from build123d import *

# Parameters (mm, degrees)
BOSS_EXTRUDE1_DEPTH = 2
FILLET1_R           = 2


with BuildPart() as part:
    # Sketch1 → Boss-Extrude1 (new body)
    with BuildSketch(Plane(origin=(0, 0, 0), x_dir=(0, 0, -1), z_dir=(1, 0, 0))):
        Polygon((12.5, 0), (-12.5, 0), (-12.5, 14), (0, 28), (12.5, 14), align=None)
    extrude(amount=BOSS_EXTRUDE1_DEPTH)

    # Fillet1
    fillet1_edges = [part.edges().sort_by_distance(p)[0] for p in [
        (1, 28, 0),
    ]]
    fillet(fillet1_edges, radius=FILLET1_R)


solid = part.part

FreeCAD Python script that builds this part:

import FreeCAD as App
import Part
import Sketcher

V = App.Vector
Q = App.Units.Quantity


def edges_at(feature, points):
    """Names of the edges that pass closest to the given points."""
    edges = feature.Shape.Edges
    near = lambda p: min(range(len(edges)), key=lambda i: edges[i].distToShape(Part.Vertex(*p))[0])
    return sorted({f"Edge{near(p) + 1}" for p in points})

doc = App.newDocument("Part")
body = doc.addObject("PartDesign::Body", "Body")

sketch1 = doc.addObject("Sketcher::SketchObject", "Sketch")
body.addObject(sketch1)
sketch1.AttachmentSupport = (doc.YZ_Plane, [""])
sketch1.MapMode = "FlatFace"
sketch1.addGeometry([
    Part.LineSegment(V(0, 12.5, 0), V(0, -12.5, 0)),
    Part.LineSegment(V(0, -12.5, 0), V(14, -12.5, 0)),
    Part.LineSegment(V(14, -12.5, 0), V(28, 0, 0)),
    Part.LineSegment(V(28, 0, 0), V(14, 12.5, 0)),
    Part.LineSegment(V(14, 12.5, 0), V(0, 12.5, 0)),
], False)
sketch1.addConstraint([
    Sketcher.Constraint("Coincident", 0, 2, 1, 1),
    Sketcher.Constraint("Coincident", 1, 2, 2, 1),
    Sketcher.Constraint("Coincident", 2, 2, 3, 1),
    Sketcher.Constraint("Coincident", 3, 2, 4, 1),
    Sketcher.Constraint("Coincident", 4, 2, 0, 1),
    Sketcher.Constraint("Vertical", 0),
    Sketcher.Constraint("Horizontal", 1),
    Sketcher.Constraint("Horizontal", 4),
    Sketcher.Constraint("Symmetric", 0, 2, 4, 2, -1, 1),
    Sketcher.Constraint("PointOnObject", 2, 2, -1),
    Sketcher.Constraint("Vertical", 1, 2, 3, 2),
    Sketcher.Constraint("DistanceX", 1, 1, 1, 2, Q("14 mm")),
    Sketcher.Constraint("DistanceY", 0, 2, 0, 1, Q("25 mm")),
    Sketcher.Constraint("DistanceX", -1, 1, 2, 2, Q("28 mm")),
])
pad1 = doc.addObject("PartDesign::Pad", "Pad")
body.addObject(pad1)
pad1.Profile = sketch1
pad1.Length = 2
doc.recompute()

fillet = doc.addObject("PartDesign::Fillet", "Fillet")
body.addObject(fillet)
fillet.Base = (pad1, edges_at(pad1, [(1, 28, 0)]))
fillet.Radius = 2

doc.recompute()
